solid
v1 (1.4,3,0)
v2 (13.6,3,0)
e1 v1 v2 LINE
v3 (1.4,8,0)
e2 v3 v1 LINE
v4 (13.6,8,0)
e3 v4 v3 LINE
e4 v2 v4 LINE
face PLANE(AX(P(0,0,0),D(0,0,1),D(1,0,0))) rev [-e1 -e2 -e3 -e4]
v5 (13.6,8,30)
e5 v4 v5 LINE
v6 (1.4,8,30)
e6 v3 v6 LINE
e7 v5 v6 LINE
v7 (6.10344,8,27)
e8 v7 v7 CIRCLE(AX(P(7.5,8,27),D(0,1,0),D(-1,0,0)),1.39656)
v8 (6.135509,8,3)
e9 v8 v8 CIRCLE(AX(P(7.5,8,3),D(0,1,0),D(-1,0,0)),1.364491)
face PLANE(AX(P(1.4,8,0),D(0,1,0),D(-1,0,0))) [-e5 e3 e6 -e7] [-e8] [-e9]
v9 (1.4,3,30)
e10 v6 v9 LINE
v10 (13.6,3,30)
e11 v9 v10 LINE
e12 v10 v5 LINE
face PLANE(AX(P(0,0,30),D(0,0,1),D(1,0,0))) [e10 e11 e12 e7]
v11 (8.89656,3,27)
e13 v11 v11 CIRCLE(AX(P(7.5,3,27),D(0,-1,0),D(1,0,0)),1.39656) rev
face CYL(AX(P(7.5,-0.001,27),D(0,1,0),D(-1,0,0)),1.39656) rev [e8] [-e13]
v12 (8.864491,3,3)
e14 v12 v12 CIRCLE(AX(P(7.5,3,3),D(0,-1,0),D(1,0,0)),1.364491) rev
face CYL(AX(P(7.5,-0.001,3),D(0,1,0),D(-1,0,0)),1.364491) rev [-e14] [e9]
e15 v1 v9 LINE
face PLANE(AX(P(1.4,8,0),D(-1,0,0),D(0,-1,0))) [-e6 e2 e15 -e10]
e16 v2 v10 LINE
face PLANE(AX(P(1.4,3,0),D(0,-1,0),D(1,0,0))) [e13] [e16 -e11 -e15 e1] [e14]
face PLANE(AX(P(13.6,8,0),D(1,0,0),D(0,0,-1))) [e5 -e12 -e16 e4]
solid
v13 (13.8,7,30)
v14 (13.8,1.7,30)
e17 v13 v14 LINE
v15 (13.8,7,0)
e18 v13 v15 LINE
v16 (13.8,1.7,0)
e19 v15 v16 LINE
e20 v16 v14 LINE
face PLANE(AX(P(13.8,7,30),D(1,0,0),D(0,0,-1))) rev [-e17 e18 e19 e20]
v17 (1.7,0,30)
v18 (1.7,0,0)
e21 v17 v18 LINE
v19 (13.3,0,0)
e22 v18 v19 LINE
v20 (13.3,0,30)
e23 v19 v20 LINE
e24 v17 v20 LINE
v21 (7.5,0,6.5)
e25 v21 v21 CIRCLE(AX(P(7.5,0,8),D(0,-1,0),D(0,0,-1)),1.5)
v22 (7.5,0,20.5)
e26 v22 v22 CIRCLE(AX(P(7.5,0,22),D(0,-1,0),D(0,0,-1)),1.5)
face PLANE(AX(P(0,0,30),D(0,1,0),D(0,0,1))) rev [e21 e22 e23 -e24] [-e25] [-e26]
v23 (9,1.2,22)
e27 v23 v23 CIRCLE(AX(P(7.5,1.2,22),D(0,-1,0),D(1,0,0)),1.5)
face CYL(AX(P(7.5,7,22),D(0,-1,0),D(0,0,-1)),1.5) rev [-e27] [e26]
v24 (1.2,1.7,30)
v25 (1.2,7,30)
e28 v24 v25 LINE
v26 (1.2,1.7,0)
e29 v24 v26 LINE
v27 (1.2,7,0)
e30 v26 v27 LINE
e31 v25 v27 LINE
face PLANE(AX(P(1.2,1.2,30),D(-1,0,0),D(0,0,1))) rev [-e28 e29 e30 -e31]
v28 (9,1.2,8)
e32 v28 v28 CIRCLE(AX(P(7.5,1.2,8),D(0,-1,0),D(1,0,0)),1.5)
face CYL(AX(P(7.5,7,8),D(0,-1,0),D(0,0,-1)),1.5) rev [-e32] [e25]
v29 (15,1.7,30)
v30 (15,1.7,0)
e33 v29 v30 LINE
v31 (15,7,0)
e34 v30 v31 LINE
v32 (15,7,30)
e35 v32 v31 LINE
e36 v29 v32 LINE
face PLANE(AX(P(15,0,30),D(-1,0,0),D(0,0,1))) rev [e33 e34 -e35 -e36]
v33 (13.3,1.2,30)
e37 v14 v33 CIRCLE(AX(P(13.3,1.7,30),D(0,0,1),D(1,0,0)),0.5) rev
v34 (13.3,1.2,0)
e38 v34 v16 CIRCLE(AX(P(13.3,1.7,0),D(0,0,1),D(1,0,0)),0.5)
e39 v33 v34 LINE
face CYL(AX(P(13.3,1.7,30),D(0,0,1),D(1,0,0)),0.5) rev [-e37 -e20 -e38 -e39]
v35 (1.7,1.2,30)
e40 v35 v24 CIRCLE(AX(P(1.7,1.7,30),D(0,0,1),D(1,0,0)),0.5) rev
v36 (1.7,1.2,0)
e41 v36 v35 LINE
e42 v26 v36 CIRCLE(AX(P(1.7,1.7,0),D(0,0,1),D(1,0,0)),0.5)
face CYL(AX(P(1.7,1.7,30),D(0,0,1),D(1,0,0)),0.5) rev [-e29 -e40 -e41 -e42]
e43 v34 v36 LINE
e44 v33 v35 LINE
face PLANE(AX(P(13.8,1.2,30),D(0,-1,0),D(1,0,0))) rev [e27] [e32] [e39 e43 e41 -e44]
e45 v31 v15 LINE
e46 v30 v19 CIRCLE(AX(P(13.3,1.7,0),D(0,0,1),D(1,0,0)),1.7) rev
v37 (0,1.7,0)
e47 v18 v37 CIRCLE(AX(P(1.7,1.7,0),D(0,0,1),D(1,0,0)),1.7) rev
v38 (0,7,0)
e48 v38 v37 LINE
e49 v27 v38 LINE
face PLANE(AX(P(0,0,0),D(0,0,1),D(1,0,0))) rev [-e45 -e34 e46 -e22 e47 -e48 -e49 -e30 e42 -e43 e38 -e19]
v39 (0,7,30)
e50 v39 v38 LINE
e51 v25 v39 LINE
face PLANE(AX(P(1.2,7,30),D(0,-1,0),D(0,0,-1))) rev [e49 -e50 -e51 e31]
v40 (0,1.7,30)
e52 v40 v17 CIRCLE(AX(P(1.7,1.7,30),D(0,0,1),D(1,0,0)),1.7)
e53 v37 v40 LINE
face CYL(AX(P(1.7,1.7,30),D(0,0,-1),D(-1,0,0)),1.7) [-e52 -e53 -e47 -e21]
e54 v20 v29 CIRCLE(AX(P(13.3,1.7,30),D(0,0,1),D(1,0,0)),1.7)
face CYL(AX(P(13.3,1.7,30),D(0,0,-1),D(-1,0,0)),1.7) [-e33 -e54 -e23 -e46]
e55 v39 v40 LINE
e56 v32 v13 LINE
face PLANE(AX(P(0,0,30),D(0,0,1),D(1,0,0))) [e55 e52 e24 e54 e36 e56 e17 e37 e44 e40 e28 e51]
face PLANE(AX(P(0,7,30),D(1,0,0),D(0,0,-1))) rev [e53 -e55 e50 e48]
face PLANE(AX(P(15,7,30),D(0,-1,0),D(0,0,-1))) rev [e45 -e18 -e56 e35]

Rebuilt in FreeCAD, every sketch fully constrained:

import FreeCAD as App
import Part
import Sketcher
from FreeCAD import Vector
Q = App.Units.Quantity


def edges_at(feature, points):
    """Names of the edges that pass closest to the given points."""
    edges = feature.Shape.Edges
    near = lambda p: min(range(len(edges)), key=lambda i: edges[i].distToShape(Part.Vertex(*p))[0])
    return sorted({f"Edge{near(p) + 1}" for p in points})


def add_polygon(sketch, points):
    """Adds a closed chain of lines whose ends are joined by coincident constraints."""
    first, n = sketch.GeometryCount, len(points)
    for a, b in zip(points, points[1:] + points[:1]):
        sketch.addGeometry(Part.LineSegment(App.Vector(*a, 0), App.Vector(*b, 0)), False)
    for i in range(n):
        sketch.addConstraint(Sketcher.Constraint("Coincident", first + i, 2, first + (i + 1) % n, 1))

doc = App.newDocument("Part")
body = doc.addObject("PartDesign::Body", "Body")

sketch1 = body.newObject("Sketcher::SketchObject", "Sketch")
sketch1.AttachmentSupport = (doc.getObject("XY_Plane"), [""])
sketch1.MapMode = "FlatFace"
add_polygon(sketch1, [(0, 7), (0, 0), (15, 0), (15, 7), (13.8, 7), (13.8, 1.2), (1.2, 1.2), (1.2, 7)])
sketch1.addConstraint(Sketcher.Constraint("Vertical", 0))
sketch1.addConstraint(Sketcher.Constraint("Horizontal", 1))
sketch1.addConstraint(Sketcher.Constraint("Vertical", 2))
sketch1.addConstraint(Sketcher.Constraint("Horizontal", 3))
sketch1.addConstraint(Sketcher.Constraint("Vertical", 4))
sketch1.addConstraint(Sketcher.Constraint("Horizontal", 5))
sketch1.addConstraint(Sketcher.Constraint("Vertical", 6))
sketch1.addConstraint(Sketcher.Constraint("Horizontal", 7))
sketch1.addConstraint(Sketcher.Constraint("Coincident", 0, 2, -1, 1))
sketch1.addConstraint(Sketcher.Constraint("Horizontal", 3, 2, 6, 2))
sketch1.addConstraint(Sketcher.Constraint("Equal", 3, 7))
sketch1.addConstraint(Sketcher.Constraint("DistanceX", 1, 1, 1, 2, Q("15 mm")))
sketch1.addConstraint(Sketcher.Constraint("DistanceY", 0, 2, 0, 1, Q("7 mm")))
sketch1.addConstraint(Sketcher.Constraint("DistanceX", 3, 2, 3, 1, Q("1.2 mm")))
sketch1.addConstraint(Sketcher.Constraint("DistanceY", 4, 2, 4, 1, Q("5.8 mm")))
pad1 = body.newObject("PartDesign::Pad", "Pad")
pad1.Profile = sketch1
pad1.Length = 30

sketch2 = body.newObject("Sketcher::SketchObject", "Sketch001")
sketch2.AttachmentSupport = (doc.getObject("XZ_Plane"), [""])
sketch2.MapMode = "FlatFace"
sketch2.addGeometry(Part.Circle(Vector(7.5, 22, 0), Vector(0, 0, 1), 1.5), False)
sketch2.addGeometry(Part.Circle(Vector(7.5, 8, 0), Vector(0, 0, 1), 1.5), False)
sketch2.addConstraint(Sketcher.Constraint("Equal", 0, 1))
sketch2.addConstraint(Sketcher.Constraint("Vertical", 0, 3, 1, 3))
sketch2.addConstraint(Sketcher.Constraint("Diameter", 0, Q("3 mm")))
sketch2.addConstraint(Sketcher.Constraint("DistanceY", -1, 1, 0, 3, Q("22 mm")))
sketch2.addConstraint(Sketcher.Constraint("DistanceY", -1, 1, 1, 3, Q("8 mm")))
sketch2.addConstraint(Sketcher.Constraint("DistanceX", -1, 1, 0, 3, Q("7.5 mm")))
pocket1 = body.newObject("PartDesign::Pocket", "Pocket")
pocket1.Profile = sketch2
pocket1.Type = "ThroughAll"
doc.recompute()

fillet = body.newObject("PartDesign::Fillet", "Fillet")
fillet.Base = (pocket1, edges_at(pocket1, [(1.2, 1.2, 15), (13.8, 1.2, 15)]))
fillet.Radius = 0.5
doc.recompute()

fillet2 = body.newObject("PartDesign::Fillet", "Fillet001")
fillet2.Base = (fillet, edges_at(fillet, [(15, 0, 15), (0, 0, 15)]))
fillet2.Radius = 1.7
body2 = doc.addObject("PartDesign::Body", "Body001")

sketch3 = body2.newObject("Sketcher::SketchObject", "Sketch002")
sketch3.AttachmentSupport = (doc.getObject("XY_Plane001"), [""])
sketch3.MapMode = "FlatFace"
sketch3.AttachmentOffset = App.Placement(Vector(0, 0, 30), App.Rotation())
add_polygon(sketch3, [(1, 8), (1, 3), (14, 3), (14, 8)])
sketch3.addConstraint(Sketcher.Constraint("Vertical", 0))
sketch3.addConstraint(Sketcher.Constraint("Horizontal", 1))
sketch3.addConstraint(Sketcher.Constraint("Vertical", 2))
sketch3.addConstraint(Sketcher.Constraint("Horizontal", 3))
sketch3.addConstraint(Sketcher.Constraint("DistanceY", 0, 2, 0, 1, Q("5 mm")))
sketch3.addConstraint(Sketcher.Constraint("DistanceX", 1, 1, 1, 2, Q("12.2 mm")))
sketch3.addConstraint(Sketcher.Constraint("DistanceY", -1, 1, 0, 2, Q("3 mm")))
sketch3.addConstraint(Sketcher.Constraint("DistanceX", -1, 1, 0, 2, Q("1.4 mm")))
pad2 = body2.newObject("PartDesign::Pad", "Pad001")
pad2.Profile = sketch3
pad2.Length = 30
pad2.Reversed = True

sketch4 = body2.newObject("Sketcher::SketchObject", "Sketch003")
sketch4.AttachmentSupport = (doc.getObject("XZ_Plane001"), [""])
sketch4.MapMode = "FlatFace"
sketch4.AttachmentOffset = App.Placement(Vector(0, 0, -8), App.Rotation())
sketch4.addGeometry(Part.Circle(Vector(7.5, 3, 0), Vector(0, 0, 1), 1.4), False)
sketch4.addGeometry(Part.Circle(Vector(7.5, 27, 0), Vector(0, 0, 1), 1.4), False)
sketch4.addConstraint(Sketcher.Constraint("Vertical", 0, 3, 1, 3))
sketch4.addConstraint(Sketcher.Constraint("DistanceY", -1, 1, 0, 3, Q("3 mm")))
sketch4.addConstraint(Sketcher.Constraint("DistanceY", -1, 1, 1, 3, Q("27 mm")))
sketch4.addConstraint(Sketcher.Constraint("DistanceX", -1, 1, 0, 3, Q("7.5 mm")))
sketch4.addConstraint(Sketcher.Constraint("Diameter", 1, Q("2.79312 mm")))
sketch4.addConstraint(Sketcher.Constraint("Diameter", 0, Q("2.728982 mm")))
pocket2 = body2.newObject("PartDesign::Pocket", "Pocket001")
pocket2.Profile = sketch4
pocket2.Length = 5
pocket2.Reversed = True

doc.recompute()
